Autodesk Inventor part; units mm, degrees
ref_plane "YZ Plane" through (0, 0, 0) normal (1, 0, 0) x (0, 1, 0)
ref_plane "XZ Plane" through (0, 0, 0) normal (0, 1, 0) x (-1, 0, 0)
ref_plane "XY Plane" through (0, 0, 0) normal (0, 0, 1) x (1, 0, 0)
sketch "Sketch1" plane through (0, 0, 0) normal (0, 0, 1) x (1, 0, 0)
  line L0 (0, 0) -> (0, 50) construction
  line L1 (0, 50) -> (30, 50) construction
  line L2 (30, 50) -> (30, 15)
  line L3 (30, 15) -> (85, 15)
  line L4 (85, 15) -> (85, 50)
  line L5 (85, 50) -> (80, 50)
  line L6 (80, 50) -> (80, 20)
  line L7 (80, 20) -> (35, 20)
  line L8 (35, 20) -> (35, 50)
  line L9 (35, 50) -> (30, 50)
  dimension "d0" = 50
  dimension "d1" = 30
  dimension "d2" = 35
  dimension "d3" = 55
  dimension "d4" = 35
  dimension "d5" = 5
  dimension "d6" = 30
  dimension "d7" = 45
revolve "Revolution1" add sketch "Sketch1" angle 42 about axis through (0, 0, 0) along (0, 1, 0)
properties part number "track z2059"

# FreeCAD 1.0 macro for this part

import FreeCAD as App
import Part
import Sketcher

V = App.Vector
Q = App.Units.Quantity


def add_polygon(sketch, points):
    """Adds a closed chain of lines whose ends are joined by coincident constraints."""
    first, n = sketch.GeometryCount, len(points)
    for a, b in zip(points, points[1:] + points[:1]):
        sketch.addGeometry(Part.LineSegment(App.Vector(*a, 0), App.Vector(*b, 0)), False)
    for i in range(n):
        sketch.addConstraint(Sketcher.Constraint("Coincident", first + i, 2, first + (i + 1) % n, 1))

doc = App.newDocument("Part")
params = doc.addObject("Spreadsheet::Sheet", "Params")
for row, (alias, value) in enumerate([
    ("sketch1_width", "5 mm"),
    ("sketch1_width2", "55 mm"),
    ("sketch1_height", "35 mm"),
    ("sketch1_height2", "30 mm"),
    ("revolution_angle", "42 deg"),
], start=1):
    params.set(f"A{row}", alias)
    params.set(f"B{row}", "=" + value)
    params.setAlias(f"B{row}", alias)

body = doc.addObject("PartDesign::Body", "Body")

sketch1 = doc.addObject("Sketcher::SketchObject", "Sketch")
body.addObject(sketch1)
sketch1.AttachmentSupport = (doc.XY_Plane, [""])
sketch1.MapMode = "FlatFace"
add_polygon(sketch1, [(35, 50), (30, 50), (30, 15), (85, 15), (85, 50), (80, 50), (80, 20), (35, 20)])
sketch1.addConstraint([
    Sketcher.Constraint("Horizontal", 0),
    Sketcher.Constraint("Vertical", 1),
    Sketcher.Constraint("Horizontal", 2),
    Sketcher.Constraint("Vertical", 3),
    Sketcher.Constraint("Horizontal", 4),
    Sketcher.Constraint("Vertical", 5),
    Sketcher.Constraint("Horizontal", 6),
    Sketcher.Constraint("Vertical", 7),
    Sketcher.Constraint("Horizontal", 0, 2, 3, 2),
    Sketcher.Constraint("Equal", 0, 4),
    Sketcher.Constraint("DistanceX", 0, 2, 0, 1, Q("5 mm")),
    Sketcher.Constraint("DistanceX", 2, 1, 2, 2, Q("55 mm")),
    Sketcher.Constraint("DistanceY", 1, 2, 1, 1, Q("35 mm")),
    Sketcher.Constraint("DistanceY", 5, 2, 5, 1, Q("30 mm")),
    Sketcher.Constraint("DistanceX", -1, 1, 0, 2, Q("30 mm")),
    Sketcher.Constraint("DistanceY", -1, 1, 0, 2, Q("50 mm")),
])
sketch1.setExpression("Constraints[18]", "Params.sketch1_width")
sketch1.setExpression("Constraints[19]", "Params.sketch1_width2")
sketch1.setExpression("Constraints[20]", "Params.sketch1_height")
sketch1.setExpression("Constraints[21]", "Params.sketch1_height2")
revolution = doc.addObject("PartDesign::Revolution", "Revolution")
body.addObject(revolution)
revolution.Profile = sketch1
revolution.ReferenceAxis = (sketch1, ["V_Axis"])
revolution.setExpression("Angle", "Params.revolution_angle")

doc.recompute()
